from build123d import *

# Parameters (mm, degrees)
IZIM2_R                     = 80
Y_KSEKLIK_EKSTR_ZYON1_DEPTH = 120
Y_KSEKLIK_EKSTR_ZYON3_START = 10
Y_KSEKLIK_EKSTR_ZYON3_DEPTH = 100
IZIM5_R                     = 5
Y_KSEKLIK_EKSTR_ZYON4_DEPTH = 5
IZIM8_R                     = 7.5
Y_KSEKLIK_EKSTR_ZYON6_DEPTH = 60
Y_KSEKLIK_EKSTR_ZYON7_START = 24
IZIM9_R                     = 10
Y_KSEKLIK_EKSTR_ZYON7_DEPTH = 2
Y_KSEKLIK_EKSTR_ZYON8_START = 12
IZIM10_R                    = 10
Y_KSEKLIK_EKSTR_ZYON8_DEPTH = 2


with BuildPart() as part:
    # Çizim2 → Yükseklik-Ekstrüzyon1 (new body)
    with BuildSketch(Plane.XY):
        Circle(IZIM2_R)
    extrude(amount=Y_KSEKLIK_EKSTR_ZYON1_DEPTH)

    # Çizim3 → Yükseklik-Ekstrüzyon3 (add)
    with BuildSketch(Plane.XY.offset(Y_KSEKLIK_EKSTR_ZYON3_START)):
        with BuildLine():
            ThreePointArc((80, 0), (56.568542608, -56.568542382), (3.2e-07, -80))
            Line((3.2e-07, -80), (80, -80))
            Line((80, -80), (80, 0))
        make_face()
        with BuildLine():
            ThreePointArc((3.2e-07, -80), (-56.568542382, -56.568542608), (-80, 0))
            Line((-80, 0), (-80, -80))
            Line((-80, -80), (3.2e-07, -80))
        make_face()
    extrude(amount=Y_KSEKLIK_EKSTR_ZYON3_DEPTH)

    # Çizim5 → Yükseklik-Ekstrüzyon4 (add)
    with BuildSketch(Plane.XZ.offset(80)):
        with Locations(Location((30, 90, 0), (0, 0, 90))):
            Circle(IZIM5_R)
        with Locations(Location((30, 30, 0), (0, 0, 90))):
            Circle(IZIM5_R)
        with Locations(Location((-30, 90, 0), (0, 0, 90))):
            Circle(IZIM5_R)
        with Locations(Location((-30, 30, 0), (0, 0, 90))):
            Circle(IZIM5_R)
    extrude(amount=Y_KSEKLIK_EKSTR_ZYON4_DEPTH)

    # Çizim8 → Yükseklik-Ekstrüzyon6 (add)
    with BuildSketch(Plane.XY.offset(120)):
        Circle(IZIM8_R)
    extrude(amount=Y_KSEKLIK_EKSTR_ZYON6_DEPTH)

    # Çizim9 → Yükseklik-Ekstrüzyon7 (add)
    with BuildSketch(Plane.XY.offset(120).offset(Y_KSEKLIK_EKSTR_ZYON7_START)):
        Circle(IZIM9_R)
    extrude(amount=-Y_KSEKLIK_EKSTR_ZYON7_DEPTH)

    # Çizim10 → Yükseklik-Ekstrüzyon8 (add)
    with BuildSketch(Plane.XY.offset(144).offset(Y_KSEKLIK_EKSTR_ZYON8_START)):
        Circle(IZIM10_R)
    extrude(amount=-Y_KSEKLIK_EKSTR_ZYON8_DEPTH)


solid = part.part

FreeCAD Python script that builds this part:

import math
import FreeCAD as App
import Part
import Sketcher
from FreeCAD import Vector

doc = App.newDocument("Part")
params = doc.addObject("Spreadsheet::Sheet", "Params")
for row, (alias, value) in enumerate([
    ("sketch1_diameter", "160 mm"),
    ("pad1_length", "120 mm"),
    ("sketch2_radius", "80 mm"),
    ("pad2_length", "100 mm"),
    ("sketch3_diameter", "10 mm"),
    ("pad3_length", "5 mm"),
    ("sketch4_diameter", "15 mm"),
    ("pad4_length", "60 mm"),
    ("sketch5_diameter", "20 mm"),
    ("pad5_length", "2 mm"),
    ("sketch6_diameter", "20 mm"),
    ("pad6_length", "2 mm"),
], start=1):
    params.set(f"A{row}", alias)
    params.set(f"B{row}", "=" + value)
    params.setAlias(f"B{row}", alias)

body = doc.addObject("PartDesign::Body", "Body")

# Sketch on XY plane
sketch1 = body.newObject("Sketcher::SketchObject", "Sketch")
sketch1.AttachmentSupport = (doc.getObject("XY_Plane"), [""])
sketch1.MapMode = "FlatFace"
sketch1.addGeometry(Part.Circle(Vector(0, 0, 0), Vector(0, 0, 1), 80), False)
sketch1.addConstraint([
    Sketcher.Constraint("Coincident", 0, 3, -1, 1),
    Sketcher.Constraint("Diameter", 0, 160.0),
])
sketch1.setExpression("Constraints[1]", "Params.sketch1_diameter")
pad1 = body.newObject("PartDesign::Pad", "Pad")
pad1.Profile = sketch1
pad1.setExpression("Length", "Params.pad1_length")

# Sketch on XY plane
sketch2 = body.newObject("Sketcher::SketchObject", "Sketch001")
sketch2.AttachmentSupport = (doc.getObject("XY_Plane"), [""])
sketch2.MapMode = "FlatFace"
sketch2.AttachmentOffset = App.Placement(Vector(0, 0, 10), App.Rotation())
sketch2.addGeometry([
    Part.ArcOfCircle(Part.Circle(Vector(0, 0, 0), Vector(0, 0, 1), 80), math.radians(-90), math.radians(0)),  # 0
    Part.LineSegment(Vector(0, -80, 0), Vector(80, -80, 0)),  # 1
    Part.LineSegment(Vector(80, -80, 0), Vector(80, 0, 0)),  # 2
    Part.ArcOfCircle(Part.Circle(Vector(0, 0, 0), Vector(0, 0, 1), 80), math.radians(180), math.radians(270)),  # 3
    Part.LineSegment(Vector(-80, 0, 0), Vector(-80, -80, 0)),  # 4
    Part.LineSegment(Vector(-80, -80, 0), Vector(0, -80, 0)),  # 5
], False)
sketch2.addConstraint([
    Sketcher.Constraint("Tangent", 0, 1, 1, 1),
    Sketcher.Constraint("Coincident", 1, 2, 2, 1),
    Sketcher.Constraint("Tangent", 2, 2, 0, 2),
    Sketcher.Constraint("Tangent", 3, 1, 4, 1),
    Sketcher.Constraint("Coincident", 4, 2, 5, 1),
    Sketcher.Constraint("Tangent", 5, 2, 3, 2),
    Sketcher.Constraint("Horizontal", 1),
    Sketcher.Constraint("Vertical", 2),
    Sketcher.Constraint("Vertical", 4),
    Sketcher.Constraint("Horizontal", 5),
    Sketcher.Constraint("Coincident", 0, 3, -1, 1),
    Sketcher.Constraint("Coincident", 3, 3, -1, 1),
    Sketcher.Constraint("Equal", 0, 3),
    Sketcher.Constraint("Radius", 0, 80.0),
])
sketch2.setExpression("Constraints[13]", "Params.sketch2_radius")
pad2 = body.newObject("PartDesign::Pad", "Pad001")
pad2.Profile = sketch2
pad2.setExpression("Length", "Params.pad2_length")

# Sketch on XZ plane
sketch3 = body.newObject("Sketcher::SketchObject", "Sketch002")
sketch3.AttachmentSupport = (doc.getObject("XZ_Plane"), [""])
sketch3.MapMode = "FlatFace"
sketch3.AttachmentOffset = App.Placement(Vector(0, 0, 80), App.Rotation())
sketch3.addGeometry([
    Part.Circle(Vector(30, 90, 0), Vector(0, 0, 1), 5),
    Part.Circle(Vector(30, 30, 0), Vector(0, 0, 1), 5),
    Part.Circle(Vector(-30, 90, 0), Vector(0, 0, 1), 5),
    Part.Circle(Vector(-30, 30, 0), Vector(0, 0, 1), 5),
], False)
sketch3.addConstraint([
    Sketcher.Constraint("Equal", 0, 1),
    Sketcher.Constraint("Equal", 1, 2),
    Sketcher.Constraint("Equal", 2, 3),
    Sketcher.Constraint("Symmetric", 0, 3, 2, 3, -2),
    Sketcher.Constraint("Symmetric", 1, 3, 3, 3, -2),
    Sketcher.Constraint("Vertical", 0, 3, 1, 3),
    Sketcher.Constraint("Diameter", 0, 10.0),
    Sketcher.Constraint("DistanceX", -1, 1, 0, 3, 30.0),
    Sketcher.Constraint("DistanceY", -1, 1, 0, 3, 90.0),
    Sketcher.Constraint("DistanceY", -1, 1, 1, 3, 30.0),
])
sketch3.setExpression("Constraints[6]", "Params.sketch3_diameter")
pad3 = body.newObject("PartDesign::Pad", "Pad002")
pad3.Profile = sketch3
pad3.setExpression("Length", "Params.pad3_length")

# Sketch on XY plane
sketch4 = body.newObject("Sketcher::SketchObject", "Sketch003")
sketch4.AttachmentSupport = (doc.getObject("XY_Plane"), [""])
sketch4.MapMode = "FlatFace"
sketch4.AttachmentOffset = App.Placement(Vector(0, 0, 120), App.Rotation())
sketch4.addGeometry(Part.Circle(Vector(0, 0, 0), Vector(0, 0, 1), 8), False)
sketch4.addConstraint([
    Sketcher.Constraint("Coincident", 0, 3, -1, 1),
    Sketcher.Constraint("Diameter", 0, 15.0),
])
sketch4.setExpression("Constraints[1]", "Params.sketch4_diameter")
pad4 = body.newObject("PartDesign::Pad", "Pad003")
pad4.Profile = sketch4
pad4.setExpression("Length", "Params.pad4_length")

# Sketch on XY plane
sketch5 = body.newObject("Sketcher::SketchObject", "Sketch004")
sketch5.AttachmentSupport = (doc.getObject("XY_Plane"), [""])
sketch5.MapMode = "FlatFace"
sketch5.AttachmentOffset = App.Placement(Vector(0, 0, 144), App.Rotation())
sketch5.addGeometry(Part.Circle(Vector(0, 0, 0), Vector(0, 0, 1), 10), False)
sketch5.addConstraint([
    Sketcher.Constraint("Coincident", 0, 3, -1, 1),
    Sketcher.Constraint("Diameter", 0, 20.0),
])
sketch5.setExpression("Constraints[1]", "Params.sketch5_diameter")
pad5 = body.newObject("PartDesign::Pad", "Pad004")
pad5.Profile = sketch5
pad5.setExpression("Length", "Params.pad5_length")
pad5.Reversed = True

# Sketch on XY plane
sketch6 = body.newObject("Sketcher::SketchObject", "Sketch005")
sketch6.AttachmentSupport = (doc.getObject("XY_Plane"), [""])
sketch6.MapMode = "FlatFace"
sketch6.AttachmentOffset = App.Placement(Vector(0, 0, 156), App.Rotation())
sketch6.addGeometry(Part.Circle(Vector(0, 0, 0), Vector(0, 0, 1), 10), False)
sketch6.addConstraint([
    Sketcher.Constraint("Coincident", 0, 3, -1, 1),
    Sketcher.Constraint("Diameter", 0, 20.0),
])
sketch6.setExpression("Constraints[1]", "Params.sketch6_diameter")
pad6 = body.newObject("PartDesign::Pad", "Pad005")
pad6.Profile = sketch6
pad6.setExpression("Length", "Params.pad6_length")
pad6.Reversed = True

doc.recompute()
